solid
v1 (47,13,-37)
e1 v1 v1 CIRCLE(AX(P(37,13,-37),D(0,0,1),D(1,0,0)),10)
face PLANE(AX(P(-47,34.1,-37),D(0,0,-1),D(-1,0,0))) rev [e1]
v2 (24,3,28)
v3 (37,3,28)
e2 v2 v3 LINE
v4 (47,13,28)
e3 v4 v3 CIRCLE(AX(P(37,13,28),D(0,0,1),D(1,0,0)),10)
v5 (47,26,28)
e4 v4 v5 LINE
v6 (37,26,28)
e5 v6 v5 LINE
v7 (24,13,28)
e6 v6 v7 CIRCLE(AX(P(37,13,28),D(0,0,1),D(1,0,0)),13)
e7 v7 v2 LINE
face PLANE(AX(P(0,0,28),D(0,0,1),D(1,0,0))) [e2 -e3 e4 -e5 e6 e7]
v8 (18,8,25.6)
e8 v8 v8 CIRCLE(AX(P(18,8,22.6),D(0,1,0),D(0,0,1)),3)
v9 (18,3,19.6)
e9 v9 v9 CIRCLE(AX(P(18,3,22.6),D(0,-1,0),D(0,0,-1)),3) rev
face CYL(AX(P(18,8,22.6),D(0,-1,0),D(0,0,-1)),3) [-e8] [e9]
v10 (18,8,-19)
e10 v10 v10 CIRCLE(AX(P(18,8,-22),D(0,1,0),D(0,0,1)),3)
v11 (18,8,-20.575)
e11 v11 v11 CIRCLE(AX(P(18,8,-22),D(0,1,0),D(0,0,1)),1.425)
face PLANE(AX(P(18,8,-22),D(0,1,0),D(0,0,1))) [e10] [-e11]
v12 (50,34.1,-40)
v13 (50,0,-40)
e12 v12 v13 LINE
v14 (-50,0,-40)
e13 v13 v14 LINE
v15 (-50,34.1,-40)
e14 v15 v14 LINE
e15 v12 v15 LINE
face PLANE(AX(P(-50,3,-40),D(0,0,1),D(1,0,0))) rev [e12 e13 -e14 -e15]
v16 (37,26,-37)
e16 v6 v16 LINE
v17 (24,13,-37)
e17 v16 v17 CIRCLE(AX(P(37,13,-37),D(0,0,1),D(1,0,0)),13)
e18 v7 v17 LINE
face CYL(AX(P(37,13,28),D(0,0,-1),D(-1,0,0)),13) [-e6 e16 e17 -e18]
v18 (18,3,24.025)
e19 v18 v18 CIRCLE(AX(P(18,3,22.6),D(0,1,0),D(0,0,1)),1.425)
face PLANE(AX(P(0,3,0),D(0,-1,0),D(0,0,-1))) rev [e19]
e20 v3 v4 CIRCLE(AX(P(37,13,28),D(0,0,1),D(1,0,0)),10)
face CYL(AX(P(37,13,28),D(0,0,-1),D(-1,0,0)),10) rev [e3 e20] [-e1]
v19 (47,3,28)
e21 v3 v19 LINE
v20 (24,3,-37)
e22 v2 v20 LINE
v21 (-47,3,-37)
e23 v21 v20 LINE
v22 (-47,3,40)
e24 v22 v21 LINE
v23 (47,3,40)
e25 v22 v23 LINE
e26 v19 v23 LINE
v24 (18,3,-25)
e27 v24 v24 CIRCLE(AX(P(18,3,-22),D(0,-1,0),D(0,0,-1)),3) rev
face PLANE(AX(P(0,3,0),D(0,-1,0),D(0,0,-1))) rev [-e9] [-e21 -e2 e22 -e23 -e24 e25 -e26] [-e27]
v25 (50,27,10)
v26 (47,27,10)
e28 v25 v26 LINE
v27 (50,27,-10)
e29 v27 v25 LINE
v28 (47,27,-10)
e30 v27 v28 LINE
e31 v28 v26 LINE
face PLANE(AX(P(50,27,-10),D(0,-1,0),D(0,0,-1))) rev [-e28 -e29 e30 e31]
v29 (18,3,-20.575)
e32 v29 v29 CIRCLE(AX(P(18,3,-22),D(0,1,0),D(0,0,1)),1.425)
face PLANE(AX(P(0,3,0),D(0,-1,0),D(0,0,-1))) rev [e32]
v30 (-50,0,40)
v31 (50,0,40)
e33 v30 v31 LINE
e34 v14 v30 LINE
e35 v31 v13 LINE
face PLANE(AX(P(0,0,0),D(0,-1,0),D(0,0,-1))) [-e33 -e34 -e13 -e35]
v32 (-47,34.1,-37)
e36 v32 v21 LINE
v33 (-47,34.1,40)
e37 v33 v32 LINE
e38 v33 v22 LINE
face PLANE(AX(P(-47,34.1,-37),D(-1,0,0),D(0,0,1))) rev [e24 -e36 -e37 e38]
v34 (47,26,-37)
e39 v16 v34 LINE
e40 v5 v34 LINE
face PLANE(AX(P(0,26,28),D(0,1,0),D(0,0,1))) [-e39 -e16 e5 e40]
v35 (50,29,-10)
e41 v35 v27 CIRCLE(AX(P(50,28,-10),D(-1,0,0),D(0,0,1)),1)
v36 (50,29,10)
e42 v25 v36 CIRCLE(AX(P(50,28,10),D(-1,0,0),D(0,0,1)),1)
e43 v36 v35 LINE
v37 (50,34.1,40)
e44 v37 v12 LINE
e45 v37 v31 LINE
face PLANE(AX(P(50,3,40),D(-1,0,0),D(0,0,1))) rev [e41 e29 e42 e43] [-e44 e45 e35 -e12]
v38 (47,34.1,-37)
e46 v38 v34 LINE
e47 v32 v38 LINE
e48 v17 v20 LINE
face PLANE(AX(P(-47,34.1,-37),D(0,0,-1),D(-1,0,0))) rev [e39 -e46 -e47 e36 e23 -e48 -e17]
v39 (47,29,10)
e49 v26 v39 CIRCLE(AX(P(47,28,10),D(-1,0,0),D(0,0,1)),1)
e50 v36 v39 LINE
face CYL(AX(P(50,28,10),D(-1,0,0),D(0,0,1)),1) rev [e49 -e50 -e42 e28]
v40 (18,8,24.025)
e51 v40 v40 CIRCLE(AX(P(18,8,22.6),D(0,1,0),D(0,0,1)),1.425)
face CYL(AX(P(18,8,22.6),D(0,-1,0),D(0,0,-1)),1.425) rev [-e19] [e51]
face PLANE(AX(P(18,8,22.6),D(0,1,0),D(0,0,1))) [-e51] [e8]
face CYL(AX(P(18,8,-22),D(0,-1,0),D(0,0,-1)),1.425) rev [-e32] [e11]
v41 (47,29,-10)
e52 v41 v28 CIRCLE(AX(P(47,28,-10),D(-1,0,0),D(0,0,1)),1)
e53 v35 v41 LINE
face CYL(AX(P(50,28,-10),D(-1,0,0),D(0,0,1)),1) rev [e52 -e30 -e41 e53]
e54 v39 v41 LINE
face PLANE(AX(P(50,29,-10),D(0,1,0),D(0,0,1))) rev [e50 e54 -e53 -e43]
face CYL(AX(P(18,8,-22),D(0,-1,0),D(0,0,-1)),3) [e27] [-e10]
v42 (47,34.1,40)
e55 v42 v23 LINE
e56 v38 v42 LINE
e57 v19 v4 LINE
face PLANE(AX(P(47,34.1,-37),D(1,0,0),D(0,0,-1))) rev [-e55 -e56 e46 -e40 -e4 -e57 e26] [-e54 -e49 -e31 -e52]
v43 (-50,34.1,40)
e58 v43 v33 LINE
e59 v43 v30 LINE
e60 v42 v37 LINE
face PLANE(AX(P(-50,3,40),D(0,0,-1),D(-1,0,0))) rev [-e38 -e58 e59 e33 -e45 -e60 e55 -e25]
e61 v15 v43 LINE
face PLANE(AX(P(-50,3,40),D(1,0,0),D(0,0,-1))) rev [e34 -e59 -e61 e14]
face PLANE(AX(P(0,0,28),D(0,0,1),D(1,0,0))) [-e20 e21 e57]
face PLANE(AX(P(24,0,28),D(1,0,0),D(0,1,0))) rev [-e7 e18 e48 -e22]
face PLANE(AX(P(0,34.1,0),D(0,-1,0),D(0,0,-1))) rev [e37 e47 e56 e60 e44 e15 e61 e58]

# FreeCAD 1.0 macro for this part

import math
import FreeCAD as App
import Part
import Sketcher
from FreeCAD import Vector
Q = App.Units.Quantity


def add_polygon(sketch, points):
    """Adds a closed chain of lines whose ends are joined by coincident constraints."""
    first, n = sketch.GeometryCount, len(points)
    for a, b in zip(points, points[1:] + points[:1]):
        sketch.addGeometry(Part.LineSegment(App.Vector(*a, 0), App.Vector(*b, 0)), False)
    for i in range(n):
        sketch.addConstraint(Sketcher.Constraint("Coincident", first + i, 2, first + (i + 1) % n, 1))

doc = App.newDocument("Part")
params = doc.addObject("Spreadsheet::Sheet", "Params")
for row, (alias, value) in enumerate([
    ("sketch1_width", "100 mm"),
    ("sketch1_height", "80 mm"),
    ("pad1_length", "3 mm"),
    ("sketch2_width", "100 mm"),
    ("sketch2_width2", "3 mm"),
    ("sketch2_height", "80 mm"),
    ("sketch2_height2", "77 mm"),
    ("pad2_length", "31.1 mm"),
    ("sketch3_radius", "13 mm"),
    ("sketch3_radius2", "10 mm"),
    ("pad3_length", "65 mm"),
    ("sketch4_diameter", "6 mm"),
    ("sketch4_diameter2", "2.85 mm"),
    ("pad4_length", "5 mm"),
    ("linearpattern_pitch", "44.6 mm"),
    ("sketch5_radius", "1 mm"),
    ("sketch5_height", "20 mm"),
], start=1):
    params.set(f"A{row}", alias)
    params.set(f"B{row}", "=" + value)
    params.setAlias(f"B{row}", alias)

body = doc.addObject("PartDesign::Body", "Body")

# Sketch on XZ plane
sketch1 = body.newObject("Sketcher::SketchObject", "Sketch")
sketch1.AttachmentSupport = (doc.getObject("XZ_Plane"), [""])
sketch1.MapMode = "FlatFace"
add_polygon(sketch1, [(-50, -40), (-50, 40), (50, 40), (50, -40)])  # lines 0-3
sketch1.addConstraint(Sketcher.Constraint("Vertical", 0))
sketch1.addConstraint(Sketcher.Constraint("Horizontal", 1))
sketch1.addConstraint(Sketcher.Constraint("Vertical", 2))
sketch1.addConstraint(Sketcher.Constraint("Horizontal", 3))
sketch1.addConstraint(Sketcher.Constraint("Symmetric", 0, 2, 2, 2, -1, 1))
sketch1.addConstraint(Sketcher.Constraint("DistanceX", 1, 1, 1, 2, Q("100 mm")))
sketch1.addConstraint(Sketcher.Constraint("DistanceY", 0, 1, 0, 2, Q("80 mm")))
sketch1.setExpression("Constraints[9]", "Params.sketch1_width")
sketch1.setExpression("Constraints[10]", "Params.sketch1_height")
pad1 = body.newObject("PartDesign::Pad", "Pad")
pad1.Profile = sketch1
pad1.setExpression("Length", "Params.pad1_length")
pad1.Reversed = True

# Sketch on XZ plane
sketch2 = body.newObject("Sketcher::SketchObject", "Sketch001")
sketch2.AttachmentSupport = (doc.getObject("XZ_Plane"), [""])
sketch2.MapMode = "FlatFace"
sketch2.AttachmentOffset = App.Placement(Vector(0, 0, -3), App.Rotation())
add_polygon(sketch2, [(50, -40), (-50, -40), (-50, 40), (-47, 40), (-47, -37), (47, -37), (47, 40), (50, 40)])  # lines 0-7
sketch2.addConstraint(Sketcher.Constraint("Horizontal", 0))
sketch2.addConstraint(Sketcher.Constraint("Vertical", 1))
sketch2.addConstraint(Sketcher.Constraint("Horizontal", 2))
sketch2.addConstraint(Sketcher.Constraint("Vertical", 3))
sketch2.addConstraint(Sketcher.Constraint("Horizontal", 4))
sketch2.addConstraint(Sketcher.Constraint("Vertical", 5))
sketch2.addConstraint(Sketcher.Constraint("Horizontal", 6))
sketch2.addConstraint(Sketcher.Constraint("Vertical", 7))
sketch2.addConstraint(Sketcher.Constraint("Symmetric", 0, 2, 6, 2, -1, 1))
sketch2.addConstraint(Sketcher.Constraint("Symmetric", 2, 2, 5, 2, -2))
sketch2.addConstraint(Sketcher.Constraint("DistanceX", 0, 2, 0, 1, Q("100 mm")))
sketch2.addConstraint(Sketcher.Constraint("DistanceX", 2, 1, 2, 2, Q("3 mm")))
sketch2.addConstraint(Sketcher.Constraint("DistanceY", 1, 1, 1, 2, Q("80 mm")))
sketch2.addConstraint(Sketcher.Constraint("DistanceY", 3, 2, 3, 1, Q("77 mm")))
sketch2.setExpression("Constraints[18]", "Params.sketch2_width")
sketch2.setExpression("Constraints[19]", "Params.sketch2_width2")
sketch2.setExpression("Constraints[20]", "Params.sketch2_height")
sketch2.setExpression("Constraints[21]", "Params.sketch2_height2")
pad2 = body.newObject("PartDesign::Pad", "Pad001")
pad2.Profile = sketch2
pad2.setExpression("Length", "Params.pad2_length")
pad2.Reversed = True

# Sketch on XY plane
sketch3 = body.newObject("Sketcher::SketchObject", "Sketch002")
sketch3.AttachmentSupport = (doc.getObject("XY_Plane"), [""])
sketch3.MapMode = "FlatFace"
sketch3.AttachmentOffset = App.Placement(Vector(0, 0, -37), App.Rotation())
sketch3.addGeometry(Part.LineSegment(Vector(47, 26, 0), Vector(37, 26, 0)), False)
sketch3.addGeometry(Part.ArcOfCircle(Part.Circle(Vector(37, 13, 0), Vector(0, 0, 1), 13), math.radians(90), math.radians(180)), False)
sketch3.addGeometry(Part.LineSegment(Vector(24, 13, 0), Vector(24, 3, 0)), False)
sketch3.addGeometry(Part.LineSegment(Vector(24, 3, 0), Vector(37, 3, 0)), False)
sketch3.addGeometry(Part.ArcOfCircle(Part.Circle(Vector(37, 13, 0), Vector(0, 0, 1), 10), math.radians(0), math.radians(270)), False)
sketch3.addGeometry(Part.LineSegment(Vector(47, 13, 0), Vector(47, 26, 0)), False)
sketch3.addGeometry(Part.LineSegment(Vector(47, 3, 0), Vector(47, 13, 0)), False)
sketch3.addGeometry(Part.ArcOfCircle(Part.Circle(Vector(37, 13, 0), Vector(0, 0, 1), 10), math.radians(-90), math.radians(0)), False)
sketch3.addGeometry(Part.LineSegment(Vector(37, 3, 0), Vector(47, 3, 0)), False)
sketch3.addConstraint(Sketcher.Constraint("Tangent", 0, 2, 1, 1))
sketch3.addConstraint(Sketcher.Constraint("Tangent", 1, 2, 2, 1))
sketch3.addConstraint(Sketcher.Constraint("Coincident", 2, 2, 3, 1))
sketch3.addConstraint(Sketcher.Constraint("Tangent", 3, 2, 4, 2))
sketch3.addConstraint(Sketcher.Constraint("Tangent", 4, 1, 5, 1))
sketch3.addConstraint(Sketcher.Constraint("Coincident", 5, 2, 0, 1))
sketch3.addConstraint(Sketcher.Constraint("Tangent", 6, 2, 7, 2))
sketch3.addConstraint(Sketcher.Constraint("Tangent", 7, 1, 8, 1))
sketch3.addConstraint(Sketcher.Constraint("Coincident", 8, 2, 6, 1))
sketch3.addConstraint(Sketcher.Constraint("Horizontal", 0))
sketch3.addConstraint(Sketcher.Constraint("Vertical", 2))
sketch3.addConstraint(Sketcher.Constraint("Horizontal", 3))
sketch3.addConstraint(Sketcher.Constraint("Vertical", 5))
sketch3.addConstraint(Sketcher.Constraint("Vertical", 6))
sketch3.addConstraint(Sketcher.Constraint("Horizontal", 8))
sketch3.addConstraint(Sketcher.Constraint("Coincident", 4, 3, 1, 3))
sketch3.addConstraint(Sketcher.Constraint("Coincident", 7, 3, 1, 3))
sketch3.addConstraint(Sketcher.Constraint("Equal", 4, 7))
sketch3.addConstraint(Sketcher.Constraint("Radius", 1, Q("13 mm")))
sketch3.addConstraint(Sketcher.Constraint("Radius", 4, Q("10 mm")))
sketch3.addConstraint(Sketcher.Constraint("DistanceX", -1, 1, 1, 3, Q("37 mm")))
sketch3.addConstraint(Sketcher.Constraint("DistanceY", -1, 1, 1, 3, Q("13 mm")))
sketch3.setExpression("Constraints[18]", "Params.sketch3_radius")
sketch3.setExpression("Constraints[19]", "Params.sketch3_radius2")
pad3 = body.newObject("PartDesign::Pad", "Pad002")
pad3.Profile = sketch3
pad3.setExpression("Length", "Params.pad3_length")

# Sketch on XZ plane
sketch4 = body.newObject("Sketcher::SketchObject", "Sketch003")
sketch4.AttachmentSupport = (doc.getObject("XZ_Plane"), [""])
sketch4.MapMode = "FlatFace"
sketch4.AttachmentOffset = App.Placement(Vector(0, 0, -3), App.Rotation())
sketch4.addGeometry(Part.Circle(Vector(18, -22, 0), Vector(0, 0, 1), 3), False)
sketch4.addGeometry(Part.Circle(Vector(18, -22, 0), Vector(0, 0, 1), 1.425), False)
sketch4.addConstraint(Sketcher.Constraint("Coincident", 1, 3, 0, 3))
sketch4.addConstraint(Sketcher.Constraint("Diameter", 0, Q("6 mm")))
sketch4.addConstraint(Sketcher.Constraint("Diameter", 1, Q("2.85 mm")))
sketch4.addConstraint(Sketcher.Constraint("DistanceX", -1, 1, 0, 3, Q("18 mm")))
sketch4.addConstraint(Sketcher.Constraint("DistanceY", 0, 3, -1, 1, Q("22 mm")))
sketch4.setExpression("Constraints[1]", "Params.sketch4_diameter")
sketch4.setExpression("Constraints[2]", "Params.sketch4_diameter2")
pad4 = body.newObject("PartDesign::Pad", "Pad003")
pad4.Profile = sketch4
pad4.setExpression("Length", "Params.pad4_length")
pad4.Reversed = True
doc.recompute()

linearpattern = body.newObject("PartDesign::LinearPattern", "LinearPattern")
linearpattern.Originals = [pad4]
linearpattern.Direction = (doc.getObject("Z_Axis"), [""])
linearpattern.Mode = "offset"
linearpattern.setExpression("Offset", "Params.linearpattern_pitch")
linearpattern.Occurrences = 2
body.Tip = linearpattern

# Sketch on YZ plane
sketch5 = body.newObject("Sketcher::SketchObject", "Sketch004")
sketch5.AttachmentSupport = (doc.getObject("YZ_Plane"), [""])
sketch5.MapMode = "FlatFace"
sketch5.AttachmentOffset = App.Placement(Vector(0, 0, 47), App.Rotation())
sketch5.addGeometry(Part.LineSegment(Vector(29, 10, 0), Vector(29, -10, 0)), False)
sketch5.addGeometry(Part.ArcOfCircle(Part.Circle(Vector(28, -10, 0), Vector(0, 0, 1), 1), math.radians(180), math.radians(360)), False)
sketch5.addGeometry(Part.LineSegment(Vector(27, -10, 0), Vector(27, 10, 0)), False)
sketch5.addGeometry(Part.ArcOfCircle(Part.Circle(Vector(28, 10, 0), Vector(0, 0, 1), 1), math.radians(0), math.radians(180)), False)
sketch5.addConstraint(Sketcher.Constraint("Tangent", 0, 2, 1, 2))
sketch5.addConstraint(Sketcher.Constraint("Tangent", 1, 1, 2, 1))
sketch5.addConstraint(Sketcher.Constraint("Tangent", 2, 2, 3, 2))
sketch5.addConstraint(Sketcher.Constraint("Tangent", 3, 1, 0, 1))
sketch5.addConstraint(Sketcher.Constraint("Vertical", 0))
sketch5.addConstraint(Sketcher.Constraint("Vertical", 2))
sketch5.addConstraint(Sketcher.Constraint("Radius", 1, Q("1 mm")))
sketch5.addConstraint(Sketcher.Constraint("DistanceY", 0, 2, 0, 1, Q("20 mm")))
sketch5.addConstraint(Sketcher.Constraint("DistanceX", -1, 1, 1, 3, Q("28 mm")))
sketch5.addConstraint(Sketcher.Constraint("DistanceY", 1, 3, -1, 1, Q("10 mm")))
sketch5.setExpression("Constraints[6]", "Params.sketch5_radius")
sketch5.setExpression("Constraints[7]", "Params.sketch5_height")
pocket1 = body.newObject("PartDesign::Pocket", "Pocket")
pocket1.Profile = sketch5
pocket1.Type = "ThroughAll"
pocket1.Reversed = True

doc.recompute()
